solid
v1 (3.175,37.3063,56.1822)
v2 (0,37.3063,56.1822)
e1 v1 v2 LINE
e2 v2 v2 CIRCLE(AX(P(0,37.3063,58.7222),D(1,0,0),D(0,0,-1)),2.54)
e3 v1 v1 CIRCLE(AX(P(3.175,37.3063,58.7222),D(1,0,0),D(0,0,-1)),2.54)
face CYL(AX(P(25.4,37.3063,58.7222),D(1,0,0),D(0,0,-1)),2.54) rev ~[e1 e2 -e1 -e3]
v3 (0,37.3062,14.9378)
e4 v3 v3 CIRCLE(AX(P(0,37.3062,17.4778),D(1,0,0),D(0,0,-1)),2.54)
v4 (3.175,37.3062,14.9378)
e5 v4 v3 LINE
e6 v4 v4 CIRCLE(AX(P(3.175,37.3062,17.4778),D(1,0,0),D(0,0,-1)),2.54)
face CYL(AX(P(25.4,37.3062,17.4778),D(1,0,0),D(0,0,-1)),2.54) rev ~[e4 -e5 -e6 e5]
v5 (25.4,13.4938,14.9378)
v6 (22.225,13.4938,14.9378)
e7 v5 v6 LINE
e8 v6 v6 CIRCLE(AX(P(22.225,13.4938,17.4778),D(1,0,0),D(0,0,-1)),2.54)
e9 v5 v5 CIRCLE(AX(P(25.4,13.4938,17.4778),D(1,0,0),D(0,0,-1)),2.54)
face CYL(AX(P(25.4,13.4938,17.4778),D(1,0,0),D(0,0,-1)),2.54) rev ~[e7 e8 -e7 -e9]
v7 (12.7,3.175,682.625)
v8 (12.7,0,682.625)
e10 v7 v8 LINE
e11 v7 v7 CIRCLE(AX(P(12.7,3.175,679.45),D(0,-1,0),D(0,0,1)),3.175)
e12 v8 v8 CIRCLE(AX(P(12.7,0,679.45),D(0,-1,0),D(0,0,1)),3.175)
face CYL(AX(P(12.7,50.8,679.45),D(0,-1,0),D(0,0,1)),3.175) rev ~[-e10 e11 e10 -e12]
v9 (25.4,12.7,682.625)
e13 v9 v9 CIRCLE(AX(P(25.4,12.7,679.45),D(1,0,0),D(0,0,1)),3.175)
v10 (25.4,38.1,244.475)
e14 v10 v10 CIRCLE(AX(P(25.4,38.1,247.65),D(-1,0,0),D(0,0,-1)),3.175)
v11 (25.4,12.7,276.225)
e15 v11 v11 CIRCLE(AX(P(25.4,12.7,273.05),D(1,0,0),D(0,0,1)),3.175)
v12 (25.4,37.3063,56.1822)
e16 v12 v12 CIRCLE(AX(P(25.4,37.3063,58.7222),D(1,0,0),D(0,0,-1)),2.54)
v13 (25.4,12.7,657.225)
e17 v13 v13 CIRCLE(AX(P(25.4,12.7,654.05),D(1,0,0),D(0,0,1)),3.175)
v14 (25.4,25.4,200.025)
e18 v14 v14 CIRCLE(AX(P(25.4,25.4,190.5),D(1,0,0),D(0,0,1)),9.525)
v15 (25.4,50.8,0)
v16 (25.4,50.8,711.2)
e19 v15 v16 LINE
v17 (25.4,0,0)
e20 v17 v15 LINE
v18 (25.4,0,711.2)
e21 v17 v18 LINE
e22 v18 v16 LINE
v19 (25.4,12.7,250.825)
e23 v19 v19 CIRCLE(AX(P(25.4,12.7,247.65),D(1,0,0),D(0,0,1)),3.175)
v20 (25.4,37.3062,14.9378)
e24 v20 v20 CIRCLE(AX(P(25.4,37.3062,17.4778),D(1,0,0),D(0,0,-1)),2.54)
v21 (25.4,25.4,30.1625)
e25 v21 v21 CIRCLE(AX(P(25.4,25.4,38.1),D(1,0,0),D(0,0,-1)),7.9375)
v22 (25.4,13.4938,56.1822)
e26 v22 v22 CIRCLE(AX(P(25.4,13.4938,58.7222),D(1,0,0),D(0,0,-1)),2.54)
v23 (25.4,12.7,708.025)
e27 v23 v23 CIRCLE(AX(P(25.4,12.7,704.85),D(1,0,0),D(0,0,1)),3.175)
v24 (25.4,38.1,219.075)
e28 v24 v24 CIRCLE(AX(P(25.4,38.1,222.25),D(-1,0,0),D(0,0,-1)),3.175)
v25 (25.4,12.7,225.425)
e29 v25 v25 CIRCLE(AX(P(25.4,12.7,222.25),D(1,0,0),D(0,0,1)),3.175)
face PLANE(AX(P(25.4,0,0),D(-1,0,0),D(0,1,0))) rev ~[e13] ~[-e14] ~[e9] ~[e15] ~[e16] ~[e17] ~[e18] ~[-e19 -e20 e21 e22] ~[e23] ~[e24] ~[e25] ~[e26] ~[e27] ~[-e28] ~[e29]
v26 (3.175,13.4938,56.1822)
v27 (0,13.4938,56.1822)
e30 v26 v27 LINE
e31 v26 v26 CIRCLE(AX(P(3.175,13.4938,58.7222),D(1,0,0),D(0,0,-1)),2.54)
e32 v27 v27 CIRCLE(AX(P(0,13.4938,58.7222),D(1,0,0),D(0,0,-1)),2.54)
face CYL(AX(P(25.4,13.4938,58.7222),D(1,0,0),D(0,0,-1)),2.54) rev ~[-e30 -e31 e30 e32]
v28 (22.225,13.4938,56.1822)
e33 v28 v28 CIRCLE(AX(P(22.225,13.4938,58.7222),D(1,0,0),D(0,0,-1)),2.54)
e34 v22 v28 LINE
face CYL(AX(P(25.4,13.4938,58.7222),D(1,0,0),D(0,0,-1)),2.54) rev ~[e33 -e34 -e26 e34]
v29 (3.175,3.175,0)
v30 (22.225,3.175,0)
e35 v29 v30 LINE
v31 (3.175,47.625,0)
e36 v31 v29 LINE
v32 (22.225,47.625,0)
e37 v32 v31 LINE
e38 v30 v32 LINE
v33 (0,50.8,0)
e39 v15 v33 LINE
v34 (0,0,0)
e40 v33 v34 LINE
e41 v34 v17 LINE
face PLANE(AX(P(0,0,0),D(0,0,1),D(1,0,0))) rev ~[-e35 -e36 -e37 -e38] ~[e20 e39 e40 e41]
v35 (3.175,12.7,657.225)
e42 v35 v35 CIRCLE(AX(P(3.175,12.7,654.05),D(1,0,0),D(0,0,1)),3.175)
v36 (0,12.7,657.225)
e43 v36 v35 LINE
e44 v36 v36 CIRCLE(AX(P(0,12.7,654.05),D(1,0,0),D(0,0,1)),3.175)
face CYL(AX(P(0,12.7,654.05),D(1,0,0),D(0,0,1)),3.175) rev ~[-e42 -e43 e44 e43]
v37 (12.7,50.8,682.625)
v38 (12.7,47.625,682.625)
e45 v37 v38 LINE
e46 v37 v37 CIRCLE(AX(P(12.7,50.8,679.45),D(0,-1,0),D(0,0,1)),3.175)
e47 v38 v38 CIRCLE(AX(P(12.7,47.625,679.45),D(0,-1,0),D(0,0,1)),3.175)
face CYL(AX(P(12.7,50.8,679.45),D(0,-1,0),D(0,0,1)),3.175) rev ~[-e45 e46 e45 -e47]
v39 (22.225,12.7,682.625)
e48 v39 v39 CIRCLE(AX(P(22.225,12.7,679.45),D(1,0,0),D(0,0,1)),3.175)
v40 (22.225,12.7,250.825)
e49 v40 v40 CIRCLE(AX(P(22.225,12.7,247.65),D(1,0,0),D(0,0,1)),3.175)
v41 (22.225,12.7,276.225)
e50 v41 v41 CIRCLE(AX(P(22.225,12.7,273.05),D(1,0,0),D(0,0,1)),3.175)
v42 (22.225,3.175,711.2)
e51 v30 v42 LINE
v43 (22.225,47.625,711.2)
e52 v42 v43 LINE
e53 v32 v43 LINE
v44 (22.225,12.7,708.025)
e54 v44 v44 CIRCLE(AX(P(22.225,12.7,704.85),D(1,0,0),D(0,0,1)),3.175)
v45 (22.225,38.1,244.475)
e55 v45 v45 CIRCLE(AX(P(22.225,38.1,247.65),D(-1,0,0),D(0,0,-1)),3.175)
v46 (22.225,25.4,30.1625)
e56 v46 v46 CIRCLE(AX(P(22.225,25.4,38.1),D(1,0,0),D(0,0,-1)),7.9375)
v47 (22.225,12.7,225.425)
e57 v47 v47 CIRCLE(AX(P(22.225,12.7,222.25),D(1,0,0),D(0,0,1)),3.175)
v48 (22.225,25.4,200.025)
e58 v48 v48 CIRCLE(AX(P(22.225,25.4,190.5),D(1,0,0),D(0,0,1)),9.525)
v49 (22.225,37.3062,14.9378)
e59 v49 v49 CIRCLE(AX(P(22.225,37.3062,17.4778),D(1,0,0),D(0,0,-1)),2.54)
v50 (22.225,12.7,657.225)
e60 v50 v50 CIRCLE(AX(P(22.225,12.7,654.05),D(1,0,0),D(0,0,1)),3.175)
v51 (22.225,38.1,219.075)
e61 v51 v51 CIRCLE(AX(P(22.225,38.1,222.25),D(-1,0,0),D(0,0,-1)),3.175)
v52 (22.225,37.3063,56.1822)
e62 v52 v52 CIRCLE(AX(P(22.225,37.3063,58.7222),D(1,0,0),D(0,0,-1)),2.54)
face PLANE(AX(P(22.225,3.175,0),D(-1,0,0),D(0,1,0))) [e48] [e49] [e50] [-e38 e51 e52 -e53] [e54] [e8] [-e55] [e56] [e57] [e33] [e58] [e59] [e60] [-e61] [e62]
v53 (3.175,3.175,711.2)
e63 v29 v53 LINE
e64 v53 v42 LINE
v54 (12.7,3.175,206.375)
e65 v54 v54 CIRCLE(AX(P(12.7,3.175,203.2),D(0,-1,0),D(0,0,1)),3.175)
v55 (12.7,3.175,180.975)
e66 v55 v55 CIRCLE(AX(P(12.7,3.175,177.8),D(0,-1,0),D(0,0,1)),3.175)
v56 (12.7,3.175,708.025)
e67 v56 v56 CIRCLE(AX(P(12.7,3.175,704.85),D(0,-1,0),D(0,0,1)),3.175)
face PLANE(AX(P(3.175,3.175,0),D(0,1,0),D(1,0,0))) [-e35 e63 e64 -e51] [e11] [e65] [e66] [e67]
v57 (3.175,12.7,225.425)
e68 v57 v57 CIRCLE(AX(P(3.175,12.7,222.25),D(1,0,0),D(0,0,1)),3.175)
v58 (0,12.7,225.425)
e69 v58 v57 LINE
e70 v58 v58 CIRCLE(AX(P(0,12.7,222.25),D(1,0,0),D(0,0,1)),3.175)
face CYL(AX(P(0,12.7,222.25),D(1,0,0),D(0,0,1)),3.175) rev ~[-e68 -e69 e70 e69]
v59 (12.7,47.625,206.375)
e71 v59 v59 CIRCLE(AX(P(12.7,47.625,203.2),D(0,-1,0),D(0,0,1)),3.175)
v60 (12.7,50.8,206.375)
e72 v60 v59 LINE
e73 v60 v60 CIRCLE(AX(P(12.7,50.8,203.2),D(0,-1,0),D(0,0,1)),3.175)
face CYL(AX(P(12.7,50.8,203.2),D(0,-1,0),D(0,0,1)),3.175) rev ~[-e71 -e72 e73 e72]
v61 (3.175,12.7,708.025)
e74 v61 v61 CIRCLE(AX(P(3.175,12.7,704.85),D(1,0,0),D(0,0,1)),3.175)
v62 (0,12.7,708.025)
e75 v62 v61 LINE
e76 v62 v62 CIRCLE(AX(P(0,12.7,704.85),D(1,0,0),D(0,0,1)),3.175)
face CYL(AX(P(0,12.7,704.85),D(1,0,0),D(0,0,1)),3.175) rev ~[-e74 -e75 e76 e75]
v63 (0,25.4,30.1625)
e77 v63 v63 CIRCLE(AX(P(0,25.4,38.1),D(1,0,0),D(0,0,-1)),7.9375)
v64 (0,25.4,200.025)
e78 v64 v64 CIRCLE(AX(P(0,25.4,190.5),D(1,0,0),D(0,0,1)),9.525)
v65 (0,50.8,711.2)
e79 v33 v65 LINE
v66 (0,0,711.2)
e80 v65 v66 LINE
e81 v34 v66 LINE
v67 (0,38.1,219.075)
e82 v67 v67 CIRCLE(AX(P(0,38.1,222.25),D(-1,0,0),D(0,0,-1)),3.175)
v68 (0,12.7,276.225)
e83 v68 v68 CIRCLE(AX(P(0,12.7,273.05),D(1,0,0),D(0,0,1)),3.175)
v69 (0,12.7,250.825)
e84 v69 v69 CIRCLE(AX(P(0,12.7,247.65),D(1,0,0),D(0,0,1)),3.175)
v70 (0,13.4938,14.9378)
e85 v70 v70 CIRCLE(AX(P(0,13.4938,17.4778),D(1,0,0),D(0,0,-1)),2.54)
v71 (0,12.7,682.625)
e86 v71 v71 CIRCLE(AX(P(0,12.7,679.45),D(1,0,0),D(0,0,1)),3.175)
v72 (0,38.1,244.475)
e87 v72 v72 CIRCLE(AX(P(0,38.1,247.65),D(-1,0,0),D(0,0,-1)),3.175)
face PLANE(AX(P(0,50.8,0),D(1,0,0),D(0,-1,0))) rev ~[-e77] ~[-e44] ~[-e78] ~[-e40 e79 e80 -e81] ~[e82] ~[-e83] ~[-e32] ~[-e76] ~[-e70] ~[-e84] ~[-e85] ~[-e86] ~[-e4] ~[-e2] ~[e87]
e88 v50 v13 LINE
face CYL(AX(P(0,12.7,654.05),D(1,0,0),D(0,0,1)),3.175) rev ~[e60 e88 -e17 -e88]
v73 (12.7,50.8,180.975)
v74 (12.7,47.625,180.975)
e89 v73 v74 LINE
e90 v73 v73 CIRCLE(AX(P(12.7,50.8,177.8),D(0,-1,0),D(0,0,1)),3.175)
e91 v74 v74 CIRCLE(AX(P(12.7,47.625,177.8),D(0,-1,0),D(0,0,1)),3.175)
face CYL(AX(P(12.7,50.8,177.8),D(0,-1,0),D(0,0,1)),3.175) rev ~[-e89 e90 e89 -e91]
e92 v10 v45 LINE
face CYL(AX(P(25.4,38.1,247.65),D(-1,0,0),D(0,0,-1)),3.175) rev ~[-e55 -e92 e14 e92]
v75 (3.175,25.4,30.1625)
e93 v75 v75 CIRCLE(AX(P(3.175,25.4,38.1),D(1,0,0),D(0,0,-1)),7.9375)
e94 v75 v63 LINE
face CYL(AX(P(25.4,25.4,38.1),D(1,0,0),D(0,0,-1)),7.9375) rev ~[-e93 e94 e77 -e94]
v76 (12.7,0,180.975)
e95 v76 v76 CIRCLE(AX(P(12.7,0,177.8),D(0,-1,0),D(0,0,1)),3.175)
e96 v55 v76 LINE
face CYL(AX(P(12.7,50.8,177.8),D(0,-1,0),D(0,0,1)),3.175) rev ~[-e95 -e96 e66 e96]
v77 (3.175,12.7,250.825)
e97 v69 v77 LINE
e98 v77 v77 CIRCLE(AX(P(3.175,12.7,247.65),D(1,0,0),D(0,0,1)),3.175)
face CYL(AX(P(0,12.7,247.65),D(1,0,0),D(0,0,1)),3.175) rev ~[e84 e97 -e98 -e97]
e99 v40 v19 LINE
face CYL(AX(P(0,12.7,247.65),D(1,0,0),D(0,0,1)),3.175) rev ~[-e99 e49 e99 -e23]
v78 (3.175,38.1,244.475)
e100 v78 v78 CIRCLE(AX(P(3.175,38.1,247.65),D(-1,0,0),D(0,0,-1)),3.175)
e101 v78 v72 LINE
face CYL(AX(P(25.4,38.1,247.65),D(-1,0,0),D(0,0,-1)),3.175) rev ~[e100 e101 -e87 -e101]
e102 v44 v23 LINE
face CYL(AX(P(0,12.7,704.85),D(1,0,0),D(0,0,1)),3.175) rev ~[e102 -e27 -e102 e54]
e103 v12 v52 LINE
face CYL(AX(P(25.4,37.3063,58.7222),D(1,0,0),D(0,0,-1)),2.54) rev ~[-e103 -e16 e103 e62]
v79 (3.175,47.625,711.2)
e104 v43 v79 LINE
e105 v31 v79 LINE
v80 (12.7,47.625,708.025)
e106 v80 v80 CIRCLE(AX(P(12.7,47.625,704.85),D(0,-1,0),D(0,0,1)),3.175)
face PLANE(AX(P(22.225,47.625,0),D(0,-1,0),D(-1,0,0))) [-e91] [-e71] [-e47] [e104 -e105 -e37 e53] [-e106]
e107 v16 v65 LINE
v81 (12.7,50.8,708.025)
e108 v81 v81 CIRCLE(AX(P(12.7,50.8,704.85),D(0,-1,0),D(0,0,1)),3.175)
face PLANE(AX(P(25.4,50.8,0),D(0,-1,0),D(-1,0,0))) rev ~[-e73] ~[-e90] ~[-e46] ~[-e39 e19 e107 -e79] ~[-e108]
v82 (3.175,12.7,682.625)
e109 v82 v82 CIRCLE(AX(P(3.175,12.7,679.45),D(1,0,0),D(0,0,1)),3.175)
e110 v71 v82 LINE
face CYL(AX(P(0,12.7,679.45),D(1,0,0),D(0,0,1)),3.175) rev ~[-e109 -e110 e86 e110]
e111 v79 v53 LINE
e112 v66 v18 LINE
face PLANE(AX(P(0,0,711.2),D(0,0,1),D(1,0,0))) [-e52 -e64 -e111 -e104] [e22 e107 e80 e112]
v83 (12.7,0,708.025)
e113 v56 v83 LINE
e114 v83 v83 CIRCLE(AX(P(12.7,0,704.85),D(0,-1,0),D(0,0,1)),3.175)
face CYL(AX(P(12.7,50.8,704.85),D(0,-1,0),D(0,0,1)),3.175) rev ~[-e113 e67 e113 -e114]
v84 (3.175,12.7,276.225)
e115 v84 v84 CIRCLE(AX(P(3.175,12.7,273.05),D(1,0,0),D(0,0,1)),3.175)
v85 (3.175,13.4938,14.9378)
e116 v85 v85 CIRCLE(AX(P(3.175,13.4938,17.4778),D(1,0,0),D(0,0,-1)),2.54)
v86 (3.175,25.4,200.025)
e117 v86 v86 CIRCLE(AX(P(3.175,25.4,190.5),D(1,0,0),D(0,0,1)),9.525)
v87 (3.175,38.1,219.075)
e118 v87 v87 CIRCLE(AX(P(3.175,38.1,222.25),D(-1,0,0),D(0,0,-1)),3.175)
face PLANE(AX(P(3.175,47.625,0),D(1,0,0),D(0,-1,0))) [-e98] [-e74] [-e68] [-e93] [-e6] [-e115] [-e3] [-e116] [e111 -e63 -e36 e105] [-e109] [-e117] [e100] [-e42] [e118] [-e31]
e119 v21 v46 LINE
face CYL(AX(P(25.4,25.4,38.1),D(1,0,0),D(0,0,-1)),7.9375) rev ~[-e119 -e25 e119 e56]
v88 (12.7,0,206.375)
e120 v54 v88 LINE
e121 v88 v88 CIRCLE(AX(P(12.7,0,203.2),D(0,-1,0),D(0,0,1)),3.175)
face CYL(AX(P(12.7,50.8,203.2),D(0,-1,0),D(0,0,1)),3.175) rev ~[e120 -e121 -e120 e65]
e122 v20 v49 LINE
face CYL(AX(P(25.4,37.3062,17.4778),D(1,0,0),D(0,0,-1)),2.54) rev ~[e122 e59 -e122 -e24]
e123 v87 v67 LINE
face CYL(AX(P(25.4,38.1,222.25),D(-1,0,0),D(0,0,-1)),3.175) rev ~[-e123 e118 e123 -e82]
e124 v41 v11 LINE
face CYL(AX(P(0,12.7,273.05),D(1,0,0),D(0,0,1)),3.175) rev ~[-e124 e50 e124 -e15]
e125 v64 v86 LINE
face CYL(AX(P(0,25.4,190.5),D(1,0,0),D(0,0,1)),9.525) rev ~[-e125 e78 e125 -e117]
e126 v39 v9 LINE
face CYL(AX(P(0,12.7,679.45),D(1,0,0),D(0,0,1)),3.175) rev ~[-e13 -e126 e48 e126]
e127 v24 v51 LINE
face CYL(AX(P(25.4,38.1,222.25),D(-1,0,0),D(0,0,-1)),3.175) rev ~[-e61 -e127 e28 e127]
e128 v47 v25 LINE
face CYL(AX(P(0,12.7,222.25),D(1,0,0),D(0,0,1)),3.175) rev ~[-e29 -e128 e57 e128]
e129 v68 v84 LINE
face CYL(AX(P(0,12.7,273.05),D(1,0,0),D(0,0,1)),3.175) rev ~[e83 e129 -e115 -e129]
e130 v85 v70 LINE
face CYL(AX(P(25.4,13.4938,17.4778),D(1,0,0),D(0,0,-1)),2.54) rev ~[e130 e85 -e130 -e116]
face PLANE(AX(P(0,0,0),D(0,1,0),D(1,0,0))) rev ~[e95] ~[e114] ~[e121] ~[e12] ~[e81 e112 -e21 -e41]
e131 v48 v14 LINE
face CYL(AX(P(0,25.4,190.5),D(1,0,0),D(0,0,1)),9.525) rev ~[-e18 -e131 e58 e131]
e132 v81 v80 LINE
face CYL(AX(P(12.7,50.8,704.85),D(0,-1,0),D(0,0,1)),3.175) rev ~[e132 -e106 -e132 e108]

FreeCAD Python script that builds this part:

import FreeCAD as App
import Part
import Sketcher
Q = App.Units.Quantity

doc = App.newDocument("Part")
body = doc.addObject("PartDesign::Body", "Body")

sketch1 = body.newObject("Sketcher::SketchObject", "Sketch")
sketch1.AttachmentSupport = (doc.getObject("XY_Plane"), [""])
sketch1.MapMode = "FlatFace"
sketch1.addGeometry([
    Part.LineSegment(App.Vector(0, 51, 0), App.Vector(0, 0, 0)),
    Part.LineSegment(App.Vector(0, 0, 0), App.Vector(25, 0, 0)),
    Part.LineSegment(App.Vector(25, 0, 0), App.Vector(25, 51, 0)),
    Part.LineSegment(App.Vector(25, 51, 0), App.Vector(0, 51, 0)),
    Part.LineSegment(App.Vector(22, 3, 0), App.Vector(3, 3, 0)),
    Part.LineSegment(App.Vector(3, 3, 0), App.Vector(3, 48, 0)),
    Part.LineSegment(App.Vector(3, 48, 0), App.Vector(22, 48, 0)),
    Part.LineSegment(App.Vector(22, 48, 0), App.Vector(22, 3, 0)),
], False)
sketch1.addConstraint([
    Sketcher.Constraint("Coincident", 0, 2, 1, 1),
    Sketcher.Constraint("Coincident", 1, 2, 2, 1),
    Sketcher.Constraint("Coincident", 2, 2, 3, 1),
    Sketcher.Constraint("Coincident", 3, 2, 0, 1),
    Sketcher.Constraint("Coincident", 4, 2, 5, 1),
    Sketcher.Constraint("Coincident", 5, 2, 6, 1),
    Sketcher.Constraint("Coincident", 6, 2, 7, 1),
    Sketcher.Constraint("Coincident", 7, 2, 4, 1),
    Sketcher.Constraint("Vertical", 0),
    Sketcher.Constraint("Horizontal", 1),
    Sketcher.Constraint("Vertical", 2),
    Sketcher.Constraint("Horizontal", 3),
    Sketcher.Constraint("Horizontal", 4),
    Sketcher.Constraint("Vertical", 5),
    Sketcher.Constraint("Horizontal", 6),
    Sketcher.Constraint("Vertical", 7),
    Sketcher.Constraint("Coincident", 0, 2, -1, 1),
    Sketcher.Constraint("DistanceX", 1, 1, 1, 2, Q("1 in")),
    Sketcher.Constraint("DistanceY", 0, 2, 0, 1, Q("2 in")),
    Sketcher.Constraint("DistanceX", 4, 2, 4, 1, Q("0.75 in")),
    Sketcher.Constraint("DistanceY", 5, 1, 5, 2, Q("1.75 in")),
    Sketcher.Constraint("DistanceX", -1, 1, 4, 2, Q("0.125 in")),
    Sketcher.Constraint("DistanceY", -1, 1, 4, 2, Q("0.125 in")),
])
pad1 = body.newObject("PartDesign::Pad", "Pad")
pad1.Profile = sketch1
pad1.Length = Q("28 in")

sketch2 = body.newObject("Sketcher::SketchObject", "Sketch001")
sketch2.AttachmentSupport = (doc.getObject("XZ_Plane"), [""])
sketch2.MapMode = "FlatFace"
sketch2.AttachmentOffset = App.Placement(App.Vector(0, 0, -2 * 25.4), App.Rotation())
sketch2.addGeometry([
    Part.Circle(App.Vector(12.7, 704.9, 0), App.Vector(0, 0, 1), 3.2),
    Part.Circle(App.Vector(12.7, 679.5, 0), App.Vector(0, 0, 1), 3.2),
    Part.Circle(App.Vector(12.7, 203.2, 0), App.Vector(0, 0, 1), 3.2),
    Part.Circle(App.Vector(12.7, 177.8, 0), App.Vector(0, 0, 1), 3.2),
], False)
sketch2.addConstraint([
    Sketcher.Constraint("Equal", 0, 1),
    Sketcher.Constraint("Equal", 1, 2),
    Sketcher.Constraint("Equal", 2, 3),
    Sketcher.Constraint("Vertical", 0, 3, 1, 3),
    Sketcher.Constraint("Vertical", 1, 3, 2, 3),
    Sketcher.Constraint("Vertical", 2, 3, 3, 3),
    Sketcher.Constraint("Diameter", 0, Q("0.25 in")),
    Sketcher.Constraint("DistanceY", -1, 1, 2, 3, Q("8 in")),
    Sketcher.Constraint("DistanceY", -1, 1, 3, 3, Q("7 in")),
    Sketcher.Constraint("DistanceY", 1, 3, 0, 3, Q("1 in")),
    Sketcher.Constraint("DistanceX", -1, 1, 0, 3, Q("0.5 in")),
    Sketcher.Constraint("DistanceY", -1, 1, 0, 3, Q("27.75 in")),
])
doc.recompute()
hole = body.newObject("PartDesign::Hole", "Hole")
hole.Profile = sketch2
hole.ThreadType = "None"
hole.Diameter = Q("0.25 in")
hole.DepthType = "ThroughAll"
hole.Reversed = True

sketch3 = body.newObject("Sketcher::SketchObject", "Sketch002")
sketch3.AttachmentSupport = (doc.getObject("YZ_Plane"), [""])
sketch3.MapMode = "FlatFace"
sketch3.addGeometry(Part.Circle(App.Vector(25, 190, 0), App.Vector(0, 0, 1), 10), False)
sketch3.addConstraint([
    Sketcher.Constraint("Diameter", 0, Q("0.75 in")),
    Sketcher.Constraint("DistanceX", -1, 1, 0, 3, Q("1 in")),
    Sketcher.Constraint("DistanceY", -1, 1, 0, 3, Q("7.5 in")),
])
doc.recompute()
hole2 = body.newObject("PartDesign::Hole", "Hole001")
hole2.Profile = sketch3
hole2.ThreadType = "None"
hole2.Diameter = Q("0.75 in")
hole2.DepthType = "ThroughAll"
hole2.Reversed = True

sketch4 = body.newObject("Sketcher::SketchObject", "Sketch003")
sketch4.AttachmentSupport = (doc.getObject("YZ_Plane"), [""])
sketch4.MapMode = "FlatFace"
sketch4.addGeometry([
    Part.Circle(App.Vector(12.7, 704.9, 0), App.Vector(0, 0, 1), 3.2),
    Part.Circle(App.Vector(12.7, 679.5, 0), App.Vector(0, 0, 1), 3.2),
    Part.Circle(App.Vector(12.7, 273.1, 0), App.Vector(0, 0, 1), 3.2),
    Part.Circle(App.Vector(12.7, 247.7, 0), App.Vector(0, 0, 1), 3.2),
    Part.Circle(App.Vector(12.7, 222.2, 0), App.Vector(0, 0, 1), 3.2),
    Part.Circle(App.Vector(12.7, 654, 0), App.Vector(0, 0, 1), 3.2),
], False)
sketch4.addConstraint([
    Sketcher.Constraint("Equal", 0, 1),
    Sketcher.Constraint("Equal", 1, 2),
    Sketcher.Constraint("Equal", 2, 3),
    Sketcher.Constraint("Equal", 3, 4),
    Sketcher.Constraint("Equal", 4, 5),
    Sketcher.Constraint("Vertical", 0, 3, 1, 3),
    Sketcher.Constraint("Vertical", 1, 3, 2, 3),
    Sketcher.Constraint("Vertical", 2, 3, 3, 3),
    Sketcher.Constraint("Vertical", 3, 3, 4, 3),
    Sketcher.Constraint("Vertical", 4, 3, 5, 3),
    Sketcher.Constraint("Diameter", 0, Q("0.25 in")),
    Sketcher.Constraint("DistanceY", 1, 3, 0, 3, Q("1 in")),
    Sketcher.Constraint("DistanceY", 2, 3, 1, 3, Q("16 in")),
    Sketcher.Constraint("DistanceY", 3, 3, 2, 3, Q("1 in")),
    Sketcher.Constraint("DistanceY", 4, 3, 3, 3, Q("1 in")),
    Sketcher.Constraint("DistanceY", 5, 3, 1, 3, Q("1 in")),
    Sketcher.Constraint("DistanceX", -1, 1, 0, 3, Q("0.5 in")),
    Sketcher.Constraint("DistanceY", -1, 1, 0, 3, Q("27.75 in")),
])
doc.recompute()
hole3 = body.newObject("PartDesign::Hole", "Hole002")
hole3.Profile = sketch4
hole3.ThreadType = "None"
hole3.Diameter = Q("0.25 in")
hole3.DepthType = "ThroughAll"
hole3.Reversed = True

sketch5 = body.newObject("Sketcher::SketchObject", "Sketch004")
sketch5.AttachmentSupport = (doc.getObject("YZ_Plane"), [""])
sketch5.MapMode = "FlatFace"
sketch5.AttachmentOffset = App.Placement(App.Vector(0, 0, 1 * 25.4), App.Rotation())
sketch5.addGeometry([
    Part.Circle(App.Vector(38.1, 247.7, 0), App.Vector(0, 0, 1), 3.2),
    Part.Circle(App.Vector(38.1, 222.2, 0), App.Vector(0, 0, 1), 3.2),
], False)
sketch5.addConstraint([
    Sketcher.Constraint("Equal", 0, 1),
    Sketcher.Constraint("Vertical", 0, 3, 1, 3),
    Sketcher.Constraint("Diameter", 0, Q("0.25 in")),
    Sketcher.Constraint("DistanceY", 1, 3, 0, 3, Q("1 in")),
    Sketcher.Constraint("DistanceX", -1, 1, 0, 3, Q("1.5 in")),
    Sketcher.Constraint("DistanceY", -1, 1, 0, 3, Q("9.75 in")),
])
doc.recompute()
hole4 = body.newObject("PartDesign::Hole", "Hole003")
hole4.Profile = sketch5
hole4.ThreadType = "None"
hole4.Diameter = Q("0.25 in")
hole4.DepthType = "ThroughAll"

sketch6 = body.newObject("Sketcher::SketchObject", "Sketch005")
sketch6.AttachmentSupport = (doc.getObject("YZ_Plane"), [""])
sketch6.MapMode = "FlatFace"
sketch6.AttachmentOffset = App.Placement(App.Vector(0, 0, 1 * 25.4), App.Rotation())
sketch6.addGeometry([
    Part.Circle(App.Vector(25.4, 38.1, 0), App.Vector(0, 0, 1), 7.9),
    Part.Circle(App.Vector(37.3, 58.7, 0), App.Vector(0, 0, 1), 2.5),
    Part.Circle(App.Vector(13.5, 58.7, 0), App.Vector(0, 0, 1), 2.5),
    Part.Circle(App.Vector(13.5, 17.5, 0), App.Vector(0, 0, 1), 2.5),
    Part.Circle(App.Vector(37.3, 17.5, 0), App.Vector(0, 0, 1), 2.5),
], False)
sketch6.addConstraint([
    Sketcher.Constraint("Equal", 1, 2),
    Sketcher.Constraint("Equal", 2, 3),
    Sketcher.Constraint("Equal", 3, 4),
    Sketcher.Constraint("Horizontal", 1, 3, 2, 3),
    Sketcher.Constraint("Horizontal", 3, 3, 4, 3),
    Sketcher.Constraint("Vertical", 2, 3, 3, 3),
    Sketcher.Constraint("Vertical", 1, 3, 4, 3),
    Sketcher.Constraint("Diameter", 1, Q("0.2 in")),
    Sketcher.Constraint("Diameter", 0, Q("0.625 in")),
    Sketcher.Constraint("DistanceX", -1, 1, 0, 3, Q("1 in")),
    Sketcher.Constraint("DistanceY", -1, 1, 0, 3, Q("1.5 in")),
    Sketcher.Constraint("DistanceX", 2, 3, 1, 3, Q("0.9375 in")),
    Sketcher.Constraint("DistanceX", -1, 1, 1, 3, Q("1.468752 in")),
    Sketcher.Constraint("DistanceY", -1, 1, 1, 3, Q("2.3119 in")),
    Sketcher.Constraint("DistanceY", -1, 1, 3, 3, Q("0.6881 in")),
])
pocket1 = body.newObject("PartDesign::Pocket", "Pocket")
pocket1.Profile = sketch6
pocket1.Length = Q("1 in")

doc.recompute()
